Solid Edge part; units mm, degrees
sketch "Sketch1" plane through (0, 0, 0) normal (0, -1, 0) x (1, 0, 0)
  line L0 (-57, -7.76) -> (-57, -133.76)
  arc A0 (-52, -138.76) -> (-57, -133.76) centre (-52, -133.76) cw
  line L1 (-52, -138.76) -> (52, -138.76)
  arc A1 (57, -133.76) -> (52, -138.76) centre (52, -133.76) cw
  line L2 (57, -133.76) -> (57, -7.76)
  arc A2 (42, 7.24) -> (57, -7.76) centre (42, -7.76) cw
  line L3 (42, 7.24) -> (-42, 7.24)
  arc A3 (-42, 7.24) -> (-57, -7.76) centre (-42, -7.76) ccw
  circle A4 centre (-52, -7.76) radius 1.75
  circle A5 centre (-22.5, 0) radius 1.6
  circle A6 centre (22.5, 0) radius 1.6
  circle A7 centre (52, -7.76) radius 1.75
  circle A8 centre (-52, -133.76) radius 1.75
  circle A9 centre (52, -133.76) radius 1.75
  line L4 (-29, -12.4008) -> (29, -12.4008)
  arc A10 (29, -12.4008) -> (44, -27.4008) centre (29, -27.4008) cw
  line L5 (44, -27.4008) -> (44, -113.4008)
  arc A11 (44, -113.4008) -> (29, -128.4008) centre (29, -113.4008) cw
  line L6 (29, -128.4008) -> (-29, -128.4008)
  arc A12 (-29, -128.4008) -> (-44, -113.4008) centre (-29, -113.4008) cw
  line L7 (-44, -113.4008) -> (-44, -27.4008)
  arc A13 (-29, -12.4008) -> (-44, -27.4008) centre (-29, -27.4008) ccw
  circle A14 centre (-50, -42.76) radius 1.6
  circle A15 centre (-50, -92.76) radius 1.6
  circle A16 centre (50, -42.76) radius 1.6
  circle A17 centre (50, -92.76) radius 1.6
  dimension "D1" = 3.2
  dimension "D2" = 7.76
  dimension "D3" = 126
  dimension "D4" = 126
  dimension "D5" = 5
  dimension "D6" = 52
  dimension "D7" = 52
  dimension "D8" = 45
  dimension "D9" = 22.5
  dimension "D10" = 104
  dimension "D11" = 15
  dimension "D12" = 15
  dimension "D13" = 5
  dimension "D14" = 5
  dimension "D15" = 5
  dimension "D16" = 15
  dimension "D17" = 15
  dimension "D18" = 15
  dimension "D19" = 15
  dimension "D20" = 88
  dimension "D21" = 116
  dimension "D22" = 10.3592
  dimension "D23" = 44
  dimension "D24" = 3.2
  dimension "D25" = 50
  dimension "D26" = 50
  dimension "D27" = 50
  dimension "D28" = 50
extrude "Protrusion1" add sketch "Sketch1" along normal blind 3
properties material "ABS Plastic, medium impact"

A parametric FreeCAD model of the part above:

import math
import FreeCAD as App
import Part
import Sketcher

doc = App.newDocument("Part")
body = doc.addObject("PartDesign::Body", "Body")

# Sketch on XZ plane
sketch1 = doc.addObject("Sketcher::SketchObject", "Sketch")
body.addObject(sketch1)
sketch1.AttachmentSupport = (doc.XZ_Plane, [""])
sketch1.MapMode = "FlatFace"
sketch1.addGeometry([
    Part.ArcOfCircle(Part.Circle(App.Vector(-42, -7.8, 0), App.Vector(0, 0, 1), 15), math.radians(90), math.radians(180)),  # 0
    Part.LineSegment(App.Vector(-57, -7.8, 0), App.Vector(-57, -133.8, 0)),  # 1
    Part.ArcOfCircle(Part.Circle(App.Vector(-52, -133.8, 0), App.Vector(0, 0, 1), 5), math.radians(180), math.radians(270)),  # 2
    Part.LineSegment(App.Vector(-52, -138.8, 0), App.Vector(52, -138.8, 0)),  # 3
    Part.ArcOfCircle(Part.Circle(App.Vector(52, -133.8, 0), App.Vector(0, 0, 1), 5), math.radians(-90), math.radians(0)),  # 4
    Part.LineSegment(App.Vector(57, -133.8, 0), App.Vector(57, -7.8, 0)),  # 5
    Part.ArcOfCircle(Part.Circle(App.Vector(42, -7.8, 0), App.Vector(0, 0, 1), 15), math.radians(0), math.radians(90)),  # 6
    Part.LineSegment(App.Vector(42, 7.2, 0), App.Vector(-42, 7.2, 0)),  # 7
    Part.Circle(App.Vector(-52, -133.8, 0), App.Vector(0, 0, 1), 1.8),  # 8
    Part.Circle(App.Vector(-50, -92.8, 0), App.Vector(0, 0, 1), 1.6),  # 9
    Part.Circle(App.Vector(52, -133.8, 0), App.Vector(0, 0, 1), 1.8),  # 10
    Part.ArcOfCircle(Part.Circle(App.Vector(-29, -27.4, 0), App.Vector(0, 0, 1), 15), math.radians(90), math.radians(180)),  # 11
    Part.LineSegment(App.Vector(-29, -12.4, 0), App.Vector(29, -12.4, 0)),  # 12
    Part.ArcOfCircle(Part.Circle(App.Vector(29, -27.4, 0), App.Vector(0, 0, 1), 15), math.radians(0), math.radians(90)),  # 13
    Part.LineSegment(App.Vector(44, -27.4, 0), App.Vector(44, -113.4, 0)),  # 14
    Part.ArcOfCircle(Part.Circle(App.Vector(29, -113.4, 0), App.Vector(0, 0, 1), 15), math.radians(-90), math.radians(0)),  # 15
    Part.LineSegment(App.Vector(29, -128.4, 0), App.Vector(-29, -128.4, 0)),  # 16
    Part.ArcOfCircle(Part.Circle(App.Vector(-29, -113.4, 0), App.Vector(0, 0, 1), 15), math.radians(180), math.radians(270)),  # 17
    Part.LineSegment(App.Vector(-44, -113.4, 0), App.Vector(-44, -27.4, 0)),  # 18
    Part.Circle(App.Vector(50, -92.8, 0), App.Vector(0, 0, 1), 1.6),  # 19
    Part.Circle(App.Vector(-50, -42.8, 0), App.Vector(0, 0, 1), 1.6),  # 20
    Part.Circle(App.Vector(-52, -7.8, 0), App.Vector(0, 0, 1), 1.8),  # 21
    Part.Circle(App.Vector(-22.5, 0, 0), App.Vector(0, 0, 1), 1.6),  # 22
    Part.Circle(App.Vector(50, -42.8, 0), App.Vector(0, 0, 1), 1.6),  # 23
    Part.Circle(App.Vector(22.5, 0, 0), App.Vector(0, 0, 1), 1.6),  # 24
    Part.Circle(App.Vector(52, -7.8, 0), App.Vector(0, 0, 1), 1.8),  # 25
], False)
sketch1.addConstraint([
    Sketcher.Constraint("Tangent", 0, 2, 1, 1),
    Sketcher.Constraint("Tangent", 1, 2, 2, 1),
    Sketcher.Constraint("Tangent", 2, 2, 3, 1),
    Sketcher.Constraint("Tangent", 3, 2, 4, 1),
    Sketcher.Constraint("Tangent", 4, 2, 5, 1),
    Sketcher.Constraint("Tangent", 5, 2, 6, 1),
    Sketcher.Constraint("Tangent", 6, 2, 7, 1),
    Sketcher.Constraint("Tangent", 7, 2, 0, 1),
    Sketcher.Constraint("Tangent", 11, 1, 12, 1),
    Sketcher.Constraint("Tangent", 12, 2, 13, 2),
    Sketcher.Constraint("Tangent", 13, 1, 14, 1),
    Sketcher.Constraint("Tangent", 14, 2, 15, 2),
    Sketcher.Constraint("Tangent", 15, 1, 16, 1),
    Sketcher.Constraint("Tangent", 16, 2, 17, 2),
    Sketcher.Constraint("Tangent", 17, 1, 18, 1),
    Sketcher.Constraint("Tangent", 18, 2, 11, 2),
    Sketcher.Constraint("Vertical", 1),
    Sketcher.Constraint("Horizontal", 3),
    Sketcher.Constraint("Vertical", 5),
    Sketcher.Constraint("Horizontal", 7),
    Sketcher.Constraint("Horizontal", 12),
    Sketcher.Constraint("Vertical", 14),
    Sketcher.Constraint("Horizontal", 16),
    Sketcher.Constraint("Vertical", 18),
    Sketcher.Constraint("Coincident", 8, 3, 2, 3),
    Sketcher.Constraint("Coincident", 10, 3, 4, 3),
    Sketcher.Constraint("Equal", 2, 4),
    Sketcher.Constraint("Equal", 0, 6),
    Sketcher.Constraint("Equal", 8, 10),
    Sketcher.Constraint("Equal", 6, 11),
    Sketcher.Constraint("Equal", 11, 13),
    Sketcher.Constraint("Equal", 13, 15),
    Sketcher.Constraint("Equal", 15, 17),
    Sketcher.Constraint("Equal", 9, 19),
    Sketcher.Constraint("Equal", 19, 20),
    Sketcher.Constraint("Equal", 10, 21),
    Sketcher.Constraint("Equal", 20, 22),
    Sketcher.Constraint("Equal", 22, 23),
    Sketcher.Constraint("Equal", 23, 24),
    Sketcher.Constraint("Equal", 21, 25),
    Sketcher.Constraint("Symmetric", 22, 3, 24, 3, -1, 1),
    Sketcher.Constraint("Symmetric", 9, 3, 19, 3, -2),
    Sketcher.Constraint("Symmetric", 20, 3, 23, 3, -2),
    Sketcher.Constraint("Symmetric", 21, 3, 25, 3, -2),
    Sketcher.Constraint("PointOnObject", 22, 3, -1),
    Sketcher.Constraint("Horizontal", 6, 3, 21, 3),
    Sketcher.Constraint("Vertical", 9, 3, 20, 3),
    Sketcher.Constraint("Vertical", 8, 3, 21, 3),
    Sketcher.Constraint("Vertical", 10, 3, 25, 3),
    Sketcher.Constraint("Radius", 0, 15.0),
    Sketcher.Constraint("Radius", 2, 5.0),
    Sketcher.Constraint("Diameter", 8, 3.5),
    Sketcher.Constraint("Diameter", 9, 3.2),
    Sketcher.Constraint("DistanceX", 3, 1, 3, 2, 104.0),
    Sketcher.Constraint("DistanceX", 12, 1, 12, 2, 58.0),
    Sketcher.Constraint("DistanceY", 1, 2, 1, 1, 126.0),
    Sketcher.Constraint("DistanceY", 14, 2, 14, 1, 86.0),
    Sketcher.Constraint("DistanceX", 9, 3, -1, 1, 50.0),
    Sketcher.Constraint("DistanceX", 11, 3, -1, 1, 29.0),
    Sketcher.Constraint("DistanceY", 2, 3, 9, 3, 41.0),
    Sketcher.Constraint("DistanceY", 20, 3, 0, 3, 35.0),
    Sketcher.Constraint("DistanceX", 22, 3, 24, 3, 45.0),
    Sketcher.Constraint("DistanceY", 0, 3, -1, 1, 7.76),
    Sketcher.Constraint("DistanceY", 11, 3, -1, 1, 27.4008),
])
pad1 = doc.addObject("PartDesign::Pad", "Pad")
body.addObject(pad1)
pad1.Profile = sketch1
pad1.Length = 3

doc.recompute()
